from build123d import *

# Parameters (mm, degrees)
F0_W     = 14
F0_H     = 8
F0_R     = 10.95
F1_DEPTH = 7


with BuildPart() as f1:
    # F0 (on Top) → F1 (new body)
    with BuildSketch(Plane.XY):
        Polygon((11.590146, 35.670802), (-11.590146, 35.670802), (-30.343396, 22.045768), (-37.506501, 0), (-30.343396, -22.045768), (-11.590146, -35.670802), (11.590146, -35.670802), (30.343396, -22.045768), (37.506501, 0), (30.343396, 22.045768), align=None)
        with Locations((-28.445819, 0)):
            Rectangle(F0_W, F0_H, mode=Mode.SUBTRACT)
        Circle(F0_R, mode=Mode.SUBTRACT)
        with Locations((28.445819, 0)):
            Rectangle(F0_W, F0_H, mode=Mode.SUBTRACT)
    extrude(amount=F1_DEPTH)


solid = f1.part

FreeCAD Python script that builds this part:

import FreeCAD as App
import Part
import Sketcher

V = App.Vector
Q = App.Units.Quantity


def add_polygon(sketch, points):
    """Adds a closed chain of lines whose ends are joined by coincident constraints."""
    first, n = sketch.GeometryCount, len(points)
    for a, b in zip(points, points[1:] + points[:1]):
        sketch.addGeometry(Part.LineSegment(App.Vector(*a, 0), App.Vector(*b, 0)), False)
    for i in range(n):
        sketch.addConstraint(Sketcher.Constraint("Coincident", first + i, 2, first + (i + 1) % n, 1))

doc = App.newDocument("Part")
body = doc.addObject("PartDesign::Body", "Body")

sketch1 = doc.addObject("Sketcher::SketchObject", "Sketch")
body.addObject(sketch1)
sketch1.AttachmentSupport = (doc.XY_Plane, [""])
sketch1.MapMode = "FlatFace"
add_polygon(sketch1, [(11.590146, 35.670802), (-11.590146, 35.670802), (-30.343396, 22.045768), (-37.506501, 0), (-30.343396, -22.045768), (-11.590146, -35.670802), (11.590146, -35.670802), (30.343396, -22.045768), (37.506501, 0), (30.343396, 22.045768)])
add_polygon(sketch1, [(-21.445819, -4), (-35.445819, -4), (-35.445819, 4), (-21.445819, 4)])
sketch1.addGeometry(Part.Circle(V(0, 0, 0), V(0, 0, 1), 10.95), False)
add_polygon(sketch1, [(35.445819, -4), (21.445819, -4), (21.445819, 4), (35.445819, 4)])
sketch1.addConstraint([
    Sketcher.Constraint("Horizontal", 0),
    Sketcher.Constraint("Horizontal", 5),
    Sketcher.Constraint("Horizontal", 10),
    Sketcher.Constraint("Vertical", 11),
    Sketcher.Constraint("Horizontal", 12),
    Sketcher.Constraint("Vertical", 13),
    Sketcher.Constraint("Horizontal", 15),
    Sketcher.Constraint("Vertical", 16),
    Sketcher.Constraint("Horizontal", 17),
    Sketcher.Constraint("Vertical", 18),
    Sketcher.Constraint("Coincident", 14, 3, -1, 1),
    Sketcher.Constraint("Symmetric", 0, 2, 5, 2, -1, 1),
    Sketcher.Constraint("Symmetric", 1, 2, 6, 2, -1, 1),
    Sketcher.Constraint("Symmetric", 2, 2, 7, 2, -1, 1),
    Sketcher.Constraint("Symmetric", 3, 2, 8, 2, -1, 1),
    Sketcher.Constraint("Symmetric", 12, 2, 15, 2, -1, 1),
    Sketcher.Constraint("Symmetric", 10, 2, 17, 2, -1, 1),
    Sketcher.Constraint("Symmetric", 3, 2, 6, 2, -2),
    Sketcher.Constraint("PointOnObject", 2, 2, -1),
    Sketcher.Constraint("Parallel", 4, 9),
    Sketcher.Constraint("Horizontal", 13, 2, 15, 2),
    Sketcher.Constraint("Vertical", 0, 2, 4, 2),
    Sketcher.Constraint("Equal", 1, 2),
    Sketcher.Constraint("Diameter", 14, 21.9),
    Sketcher.Constraint("DistanceX", 10, 2, 10, 1, 14.0),
    Sketcher.Constraint("DistanceY", 11, 1, 11, 2, 8.0),
    Sketcher.Constraint("Angle", 1, Q("-143.999999 deg")),
    Sketcher.Constraint("Angle", 2, Q("-108.000002 deg")),
    Sketcher.Constraint("DistanceX", 2, 2, -1, 1, 37.506501),
    Sketcher.Constraint("Distance", 1, 23.180292),
    Sketcher.Constraint("DistanceX", 10, 2, -1, 1, 35.445819),
])
pad1 = doc.addObject("PartDesign::Pad", "Pad")
body.addObject(pad1)
pad1.Profile = sketch1
pad1.Length = 7

doc.recompute()
